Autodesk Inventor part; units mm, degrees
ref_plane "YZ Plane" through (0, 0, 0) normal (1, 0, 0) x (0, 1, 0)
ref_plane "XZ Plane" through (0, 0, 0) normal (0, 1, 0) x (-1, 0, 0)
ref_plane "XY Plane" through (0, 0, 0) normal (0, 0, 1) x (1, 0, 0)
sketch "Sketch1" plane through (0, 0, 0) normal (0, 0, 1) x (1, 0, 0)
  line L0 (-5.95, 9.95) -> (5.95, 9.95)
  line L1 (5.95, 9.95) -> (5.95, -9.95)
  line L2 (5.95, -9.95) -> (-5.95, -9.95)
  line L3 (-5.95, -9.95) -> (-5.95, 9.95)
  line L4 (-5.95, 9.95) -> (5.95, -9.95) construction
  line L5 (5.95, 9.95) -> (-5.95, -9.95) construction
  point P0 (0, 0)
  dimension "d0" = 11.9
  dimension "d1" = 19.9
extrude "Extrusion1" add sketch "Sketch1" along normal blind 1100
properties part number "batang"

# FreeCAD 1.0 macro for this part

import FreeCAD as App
import Part
import Sketcher

V = App.Vector
Q = App.Units.Quantity


def add_polygon(sketch, points):
    """Adds a closed chain of lines whose ends are joined by coincident constraints."""
    first, n = sketch.GeometryCount, len(points)
    for a, b in zip(points, points[1:] + points[:1]):
        sketch.addGeometry(Part.LineSegment(App.Vector(*a, 0), App.Vector(*b, 0)), False)
    for i in range(n):
        sketch.addConstraint(Sketcher.Constraint("Coincident", first + i, 2, first + (i + 1) % n, 1))

doc = App.newDocument("Part")
body = doc.addObject("PartDesign::Body", "Body")

# Sketch on XY plane
sketch1 = doc.addObject("Sketcher::SketchObject", "Sketch")
body.addObject(sketch1)
sketch1.AttachmentSupport = (doc.XY_Plane, [""])
sketch1.MapMode = "FlatFace"
add_polygon(sketch1, [(6, 10), (-6, 10), (-6, -10), (6, -10)])  # lines 0-3
sketch1.addConstraint([
    Sketcher.Constraint("Horizontal", 0),
    Sketcher.Constraint("Vertical", 1),
    Sketcher.Constraint("Horizontal", 2),
    Sketcher.Constraint("Vertical", 3),
    Sketcher.Constraint("Symmetric", 0, 2, 2, 2, -1, 1),
    Sketcher.Constraint("DistanceX", 0, 2, 0, 1, Q("11.9 mm")),
    Sketcher.Constraint("DistanceY", 1, 2, 1, 1, Q("19.9 mm")),
])
pad1 = doc.addObject("PartDesign::Pad", "Pad")
body.addObject(pad1)
pad1.Profile = sketch1
pad1.Length = 1100

doc.recompute()
